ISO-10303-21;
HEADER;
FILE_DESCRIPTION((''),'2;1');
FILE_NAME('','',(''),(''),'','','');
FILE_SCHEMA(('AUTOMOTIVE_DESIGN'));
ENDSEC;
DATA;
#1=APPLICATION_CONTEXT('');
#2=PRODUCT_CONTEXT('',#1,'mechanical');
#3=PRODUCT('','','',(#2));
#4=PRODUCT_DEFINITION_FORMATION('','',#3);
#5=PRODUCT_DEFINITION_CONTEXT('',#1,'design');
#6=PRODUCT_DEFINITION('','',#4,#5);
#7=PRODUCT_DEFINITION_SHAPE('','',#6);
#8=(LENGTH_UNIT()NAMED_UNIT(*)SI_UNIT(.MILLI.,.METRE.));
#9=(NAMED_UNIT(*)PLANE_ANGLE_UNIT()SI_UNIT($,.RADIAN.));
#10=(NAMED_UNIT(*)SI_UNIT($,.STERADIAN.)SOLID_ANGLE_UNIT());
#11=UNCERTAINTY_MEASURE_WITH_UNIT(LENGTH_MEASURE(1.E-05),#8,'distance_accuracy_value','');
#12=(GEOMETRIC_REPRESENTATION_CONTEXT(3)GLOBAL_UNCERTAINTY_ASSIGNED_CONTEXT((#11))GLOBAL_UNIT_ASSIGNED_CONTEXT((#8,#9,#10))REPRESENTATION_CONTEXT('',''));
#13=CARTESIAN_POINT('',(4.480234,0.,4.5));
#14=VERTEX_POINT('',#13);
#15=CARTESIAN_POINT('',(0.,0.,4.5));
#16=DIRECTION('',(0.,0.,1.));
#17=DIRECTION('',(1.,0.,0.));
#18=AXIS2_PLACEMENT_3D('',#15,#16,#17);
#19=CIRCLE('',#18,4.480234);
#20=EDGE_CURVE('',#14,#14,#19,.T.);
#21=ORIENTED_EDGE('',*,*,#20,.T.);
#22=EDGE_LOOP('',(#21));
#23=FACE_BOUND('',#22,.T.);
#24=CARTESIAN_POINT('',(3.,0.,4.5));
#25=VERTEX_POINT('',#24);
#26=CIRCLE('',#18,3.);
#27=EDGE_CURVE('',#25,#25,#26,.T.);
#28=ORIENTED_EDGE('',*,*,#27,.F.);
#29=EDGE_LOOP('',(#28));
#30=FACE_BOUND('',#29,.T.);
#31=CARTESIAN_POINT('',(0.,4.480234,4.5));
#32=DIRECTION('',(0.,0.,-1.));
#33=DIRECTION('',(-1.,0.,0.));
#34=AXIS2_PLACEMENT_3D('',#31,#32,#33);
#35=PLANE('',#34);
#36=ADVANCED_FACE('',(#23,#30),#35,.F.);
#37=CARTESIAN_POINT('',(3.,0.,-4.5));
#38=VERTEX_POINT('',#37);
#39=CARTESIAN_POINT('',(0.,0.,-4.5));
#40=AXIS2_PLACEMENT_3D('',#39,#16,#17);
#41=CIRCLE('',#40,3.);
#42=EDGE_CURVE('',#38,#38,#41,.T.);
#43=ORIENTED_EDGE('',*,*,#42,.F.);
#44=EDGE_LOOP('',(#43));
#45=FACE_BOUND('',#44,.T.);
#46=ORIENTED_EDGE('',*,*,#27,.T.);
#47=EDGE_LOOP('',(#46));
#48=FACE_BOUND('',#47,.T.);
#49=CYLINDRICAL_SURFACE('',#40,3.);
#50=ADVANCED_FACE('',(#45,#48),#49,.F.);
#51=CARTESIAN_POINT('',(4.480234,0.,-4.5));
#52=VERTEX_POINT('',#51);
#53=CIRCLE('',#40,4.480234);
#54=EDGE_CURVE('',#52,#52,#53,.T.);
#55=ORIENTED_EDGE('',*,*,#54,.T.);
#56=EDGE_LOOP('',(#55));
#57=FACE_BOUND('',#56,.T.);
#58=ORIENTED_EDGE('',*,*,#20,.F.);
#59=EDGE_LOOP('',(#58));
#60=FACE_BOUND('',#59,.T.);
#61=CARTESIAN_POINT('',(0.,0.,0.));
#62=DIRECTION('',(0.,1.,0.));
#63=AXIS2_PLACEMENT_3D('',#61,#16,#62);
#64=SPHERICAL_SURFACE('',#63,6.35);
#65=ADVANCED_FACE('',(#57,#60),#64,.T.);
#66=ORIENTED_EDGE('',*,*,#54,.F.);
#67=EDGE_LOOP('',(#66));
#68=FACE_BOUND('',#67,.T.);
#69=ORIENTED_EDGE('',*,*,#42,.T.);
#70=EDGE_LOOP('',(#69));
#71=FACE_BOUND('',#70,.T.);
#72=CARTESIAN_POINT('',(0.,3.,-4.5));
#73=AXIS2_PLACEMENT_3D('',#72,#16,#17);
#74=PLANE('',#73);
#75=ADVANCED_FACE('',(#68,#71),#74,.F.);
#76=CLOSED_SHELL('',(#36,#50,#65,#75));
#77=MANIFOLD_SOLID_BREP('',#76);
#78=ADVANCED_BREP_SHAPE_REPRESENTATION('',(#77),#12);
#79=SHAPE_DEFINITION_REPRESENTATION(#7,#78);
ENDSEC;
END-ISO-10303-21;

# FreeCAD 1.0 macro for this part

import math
import FreeCAD as App
import Part
import Sketcher
from FreeCAD import Vector
Q = App.Units.Quantity

doc = App.newDocument("Part")
body = doc.addObject("PartDesign::Body", "Body")

sketch1 = body.newObject("Sketcher::SketchObject", "Sketch")
sketch1.AttachmentSupport = (doc.getObject("YZ_Plane"), [""])
sketch1.MapMode = "FlatFace"
sketch1.addGeometry(Part.LineSegment(Vector(3, 4.5, 0), Vector(3, -4.5, 0)), False)
sketch1.addGeometry(Part.LineSegment(Vector(3, -4.5, 0), Vector(4.5, -4.5, 0)), False)
sketch1.addGeometry(Part.ArcOfCircle(Part.Circle(Vector(0, 0, 0), Vector(0, 0, 1), 6.3), math.radians(-45), math.radians(45)), False)
sketch1.addGeometry(Part.LineSegment(Vector(4.5, 4.5, 0), Vector(3, 4.5, 0)), False)
sketch1.addConstraint(Sketcher.Constraint("Coincident", 0, 2, 1, 1))
sketch1.addConstraint(Sketcher.Constraint("Coincident", 1, 2, 2, 1))
sketch1.addConstraint(Sketcher.Constraint("Coincident", 2, 2, 3, 1))
sketch1.addConstraint(Sketcher.Constraint("Coincident", 3, 2, 0, 1))
sketch1.addConstraint(Sketcher.Constraint("Vertical", 0))
sketch1.addConstraint(Sketcher.Constraint("Horizontal", 1))
sketch1.addConstraint(Sketcher.Constraint("Horizontal", 3))
sketch1.addConstraint(Sketcher.Constraint("Coincident", 2, 3, -1, 1))
sketch1.addConstraint(Sketcher.Constraint("Vertical", 1, 2, 2, 2))
sketch1.addConstraint(Sketcher.Constraint("DistanceY", 0, 2, 0, 1, Q("9 mm")))
sketch1.addConstraint(Sketcher.Constraint("Radius", 2, Q("6.35 mm")))
sketch1.addConstraint(Sketcher.Constraint("DistanceX", -1, 1, 0, 2, Q("3 mm")))
revolution = body.newObject("PartDesign::Revolution", "Revolution")
revolution.Profile = sketch1
revolution.ReferenceAxis = (sketch1, ["V_Axis"])
revolution.Angle = 360

doc.recompute()
